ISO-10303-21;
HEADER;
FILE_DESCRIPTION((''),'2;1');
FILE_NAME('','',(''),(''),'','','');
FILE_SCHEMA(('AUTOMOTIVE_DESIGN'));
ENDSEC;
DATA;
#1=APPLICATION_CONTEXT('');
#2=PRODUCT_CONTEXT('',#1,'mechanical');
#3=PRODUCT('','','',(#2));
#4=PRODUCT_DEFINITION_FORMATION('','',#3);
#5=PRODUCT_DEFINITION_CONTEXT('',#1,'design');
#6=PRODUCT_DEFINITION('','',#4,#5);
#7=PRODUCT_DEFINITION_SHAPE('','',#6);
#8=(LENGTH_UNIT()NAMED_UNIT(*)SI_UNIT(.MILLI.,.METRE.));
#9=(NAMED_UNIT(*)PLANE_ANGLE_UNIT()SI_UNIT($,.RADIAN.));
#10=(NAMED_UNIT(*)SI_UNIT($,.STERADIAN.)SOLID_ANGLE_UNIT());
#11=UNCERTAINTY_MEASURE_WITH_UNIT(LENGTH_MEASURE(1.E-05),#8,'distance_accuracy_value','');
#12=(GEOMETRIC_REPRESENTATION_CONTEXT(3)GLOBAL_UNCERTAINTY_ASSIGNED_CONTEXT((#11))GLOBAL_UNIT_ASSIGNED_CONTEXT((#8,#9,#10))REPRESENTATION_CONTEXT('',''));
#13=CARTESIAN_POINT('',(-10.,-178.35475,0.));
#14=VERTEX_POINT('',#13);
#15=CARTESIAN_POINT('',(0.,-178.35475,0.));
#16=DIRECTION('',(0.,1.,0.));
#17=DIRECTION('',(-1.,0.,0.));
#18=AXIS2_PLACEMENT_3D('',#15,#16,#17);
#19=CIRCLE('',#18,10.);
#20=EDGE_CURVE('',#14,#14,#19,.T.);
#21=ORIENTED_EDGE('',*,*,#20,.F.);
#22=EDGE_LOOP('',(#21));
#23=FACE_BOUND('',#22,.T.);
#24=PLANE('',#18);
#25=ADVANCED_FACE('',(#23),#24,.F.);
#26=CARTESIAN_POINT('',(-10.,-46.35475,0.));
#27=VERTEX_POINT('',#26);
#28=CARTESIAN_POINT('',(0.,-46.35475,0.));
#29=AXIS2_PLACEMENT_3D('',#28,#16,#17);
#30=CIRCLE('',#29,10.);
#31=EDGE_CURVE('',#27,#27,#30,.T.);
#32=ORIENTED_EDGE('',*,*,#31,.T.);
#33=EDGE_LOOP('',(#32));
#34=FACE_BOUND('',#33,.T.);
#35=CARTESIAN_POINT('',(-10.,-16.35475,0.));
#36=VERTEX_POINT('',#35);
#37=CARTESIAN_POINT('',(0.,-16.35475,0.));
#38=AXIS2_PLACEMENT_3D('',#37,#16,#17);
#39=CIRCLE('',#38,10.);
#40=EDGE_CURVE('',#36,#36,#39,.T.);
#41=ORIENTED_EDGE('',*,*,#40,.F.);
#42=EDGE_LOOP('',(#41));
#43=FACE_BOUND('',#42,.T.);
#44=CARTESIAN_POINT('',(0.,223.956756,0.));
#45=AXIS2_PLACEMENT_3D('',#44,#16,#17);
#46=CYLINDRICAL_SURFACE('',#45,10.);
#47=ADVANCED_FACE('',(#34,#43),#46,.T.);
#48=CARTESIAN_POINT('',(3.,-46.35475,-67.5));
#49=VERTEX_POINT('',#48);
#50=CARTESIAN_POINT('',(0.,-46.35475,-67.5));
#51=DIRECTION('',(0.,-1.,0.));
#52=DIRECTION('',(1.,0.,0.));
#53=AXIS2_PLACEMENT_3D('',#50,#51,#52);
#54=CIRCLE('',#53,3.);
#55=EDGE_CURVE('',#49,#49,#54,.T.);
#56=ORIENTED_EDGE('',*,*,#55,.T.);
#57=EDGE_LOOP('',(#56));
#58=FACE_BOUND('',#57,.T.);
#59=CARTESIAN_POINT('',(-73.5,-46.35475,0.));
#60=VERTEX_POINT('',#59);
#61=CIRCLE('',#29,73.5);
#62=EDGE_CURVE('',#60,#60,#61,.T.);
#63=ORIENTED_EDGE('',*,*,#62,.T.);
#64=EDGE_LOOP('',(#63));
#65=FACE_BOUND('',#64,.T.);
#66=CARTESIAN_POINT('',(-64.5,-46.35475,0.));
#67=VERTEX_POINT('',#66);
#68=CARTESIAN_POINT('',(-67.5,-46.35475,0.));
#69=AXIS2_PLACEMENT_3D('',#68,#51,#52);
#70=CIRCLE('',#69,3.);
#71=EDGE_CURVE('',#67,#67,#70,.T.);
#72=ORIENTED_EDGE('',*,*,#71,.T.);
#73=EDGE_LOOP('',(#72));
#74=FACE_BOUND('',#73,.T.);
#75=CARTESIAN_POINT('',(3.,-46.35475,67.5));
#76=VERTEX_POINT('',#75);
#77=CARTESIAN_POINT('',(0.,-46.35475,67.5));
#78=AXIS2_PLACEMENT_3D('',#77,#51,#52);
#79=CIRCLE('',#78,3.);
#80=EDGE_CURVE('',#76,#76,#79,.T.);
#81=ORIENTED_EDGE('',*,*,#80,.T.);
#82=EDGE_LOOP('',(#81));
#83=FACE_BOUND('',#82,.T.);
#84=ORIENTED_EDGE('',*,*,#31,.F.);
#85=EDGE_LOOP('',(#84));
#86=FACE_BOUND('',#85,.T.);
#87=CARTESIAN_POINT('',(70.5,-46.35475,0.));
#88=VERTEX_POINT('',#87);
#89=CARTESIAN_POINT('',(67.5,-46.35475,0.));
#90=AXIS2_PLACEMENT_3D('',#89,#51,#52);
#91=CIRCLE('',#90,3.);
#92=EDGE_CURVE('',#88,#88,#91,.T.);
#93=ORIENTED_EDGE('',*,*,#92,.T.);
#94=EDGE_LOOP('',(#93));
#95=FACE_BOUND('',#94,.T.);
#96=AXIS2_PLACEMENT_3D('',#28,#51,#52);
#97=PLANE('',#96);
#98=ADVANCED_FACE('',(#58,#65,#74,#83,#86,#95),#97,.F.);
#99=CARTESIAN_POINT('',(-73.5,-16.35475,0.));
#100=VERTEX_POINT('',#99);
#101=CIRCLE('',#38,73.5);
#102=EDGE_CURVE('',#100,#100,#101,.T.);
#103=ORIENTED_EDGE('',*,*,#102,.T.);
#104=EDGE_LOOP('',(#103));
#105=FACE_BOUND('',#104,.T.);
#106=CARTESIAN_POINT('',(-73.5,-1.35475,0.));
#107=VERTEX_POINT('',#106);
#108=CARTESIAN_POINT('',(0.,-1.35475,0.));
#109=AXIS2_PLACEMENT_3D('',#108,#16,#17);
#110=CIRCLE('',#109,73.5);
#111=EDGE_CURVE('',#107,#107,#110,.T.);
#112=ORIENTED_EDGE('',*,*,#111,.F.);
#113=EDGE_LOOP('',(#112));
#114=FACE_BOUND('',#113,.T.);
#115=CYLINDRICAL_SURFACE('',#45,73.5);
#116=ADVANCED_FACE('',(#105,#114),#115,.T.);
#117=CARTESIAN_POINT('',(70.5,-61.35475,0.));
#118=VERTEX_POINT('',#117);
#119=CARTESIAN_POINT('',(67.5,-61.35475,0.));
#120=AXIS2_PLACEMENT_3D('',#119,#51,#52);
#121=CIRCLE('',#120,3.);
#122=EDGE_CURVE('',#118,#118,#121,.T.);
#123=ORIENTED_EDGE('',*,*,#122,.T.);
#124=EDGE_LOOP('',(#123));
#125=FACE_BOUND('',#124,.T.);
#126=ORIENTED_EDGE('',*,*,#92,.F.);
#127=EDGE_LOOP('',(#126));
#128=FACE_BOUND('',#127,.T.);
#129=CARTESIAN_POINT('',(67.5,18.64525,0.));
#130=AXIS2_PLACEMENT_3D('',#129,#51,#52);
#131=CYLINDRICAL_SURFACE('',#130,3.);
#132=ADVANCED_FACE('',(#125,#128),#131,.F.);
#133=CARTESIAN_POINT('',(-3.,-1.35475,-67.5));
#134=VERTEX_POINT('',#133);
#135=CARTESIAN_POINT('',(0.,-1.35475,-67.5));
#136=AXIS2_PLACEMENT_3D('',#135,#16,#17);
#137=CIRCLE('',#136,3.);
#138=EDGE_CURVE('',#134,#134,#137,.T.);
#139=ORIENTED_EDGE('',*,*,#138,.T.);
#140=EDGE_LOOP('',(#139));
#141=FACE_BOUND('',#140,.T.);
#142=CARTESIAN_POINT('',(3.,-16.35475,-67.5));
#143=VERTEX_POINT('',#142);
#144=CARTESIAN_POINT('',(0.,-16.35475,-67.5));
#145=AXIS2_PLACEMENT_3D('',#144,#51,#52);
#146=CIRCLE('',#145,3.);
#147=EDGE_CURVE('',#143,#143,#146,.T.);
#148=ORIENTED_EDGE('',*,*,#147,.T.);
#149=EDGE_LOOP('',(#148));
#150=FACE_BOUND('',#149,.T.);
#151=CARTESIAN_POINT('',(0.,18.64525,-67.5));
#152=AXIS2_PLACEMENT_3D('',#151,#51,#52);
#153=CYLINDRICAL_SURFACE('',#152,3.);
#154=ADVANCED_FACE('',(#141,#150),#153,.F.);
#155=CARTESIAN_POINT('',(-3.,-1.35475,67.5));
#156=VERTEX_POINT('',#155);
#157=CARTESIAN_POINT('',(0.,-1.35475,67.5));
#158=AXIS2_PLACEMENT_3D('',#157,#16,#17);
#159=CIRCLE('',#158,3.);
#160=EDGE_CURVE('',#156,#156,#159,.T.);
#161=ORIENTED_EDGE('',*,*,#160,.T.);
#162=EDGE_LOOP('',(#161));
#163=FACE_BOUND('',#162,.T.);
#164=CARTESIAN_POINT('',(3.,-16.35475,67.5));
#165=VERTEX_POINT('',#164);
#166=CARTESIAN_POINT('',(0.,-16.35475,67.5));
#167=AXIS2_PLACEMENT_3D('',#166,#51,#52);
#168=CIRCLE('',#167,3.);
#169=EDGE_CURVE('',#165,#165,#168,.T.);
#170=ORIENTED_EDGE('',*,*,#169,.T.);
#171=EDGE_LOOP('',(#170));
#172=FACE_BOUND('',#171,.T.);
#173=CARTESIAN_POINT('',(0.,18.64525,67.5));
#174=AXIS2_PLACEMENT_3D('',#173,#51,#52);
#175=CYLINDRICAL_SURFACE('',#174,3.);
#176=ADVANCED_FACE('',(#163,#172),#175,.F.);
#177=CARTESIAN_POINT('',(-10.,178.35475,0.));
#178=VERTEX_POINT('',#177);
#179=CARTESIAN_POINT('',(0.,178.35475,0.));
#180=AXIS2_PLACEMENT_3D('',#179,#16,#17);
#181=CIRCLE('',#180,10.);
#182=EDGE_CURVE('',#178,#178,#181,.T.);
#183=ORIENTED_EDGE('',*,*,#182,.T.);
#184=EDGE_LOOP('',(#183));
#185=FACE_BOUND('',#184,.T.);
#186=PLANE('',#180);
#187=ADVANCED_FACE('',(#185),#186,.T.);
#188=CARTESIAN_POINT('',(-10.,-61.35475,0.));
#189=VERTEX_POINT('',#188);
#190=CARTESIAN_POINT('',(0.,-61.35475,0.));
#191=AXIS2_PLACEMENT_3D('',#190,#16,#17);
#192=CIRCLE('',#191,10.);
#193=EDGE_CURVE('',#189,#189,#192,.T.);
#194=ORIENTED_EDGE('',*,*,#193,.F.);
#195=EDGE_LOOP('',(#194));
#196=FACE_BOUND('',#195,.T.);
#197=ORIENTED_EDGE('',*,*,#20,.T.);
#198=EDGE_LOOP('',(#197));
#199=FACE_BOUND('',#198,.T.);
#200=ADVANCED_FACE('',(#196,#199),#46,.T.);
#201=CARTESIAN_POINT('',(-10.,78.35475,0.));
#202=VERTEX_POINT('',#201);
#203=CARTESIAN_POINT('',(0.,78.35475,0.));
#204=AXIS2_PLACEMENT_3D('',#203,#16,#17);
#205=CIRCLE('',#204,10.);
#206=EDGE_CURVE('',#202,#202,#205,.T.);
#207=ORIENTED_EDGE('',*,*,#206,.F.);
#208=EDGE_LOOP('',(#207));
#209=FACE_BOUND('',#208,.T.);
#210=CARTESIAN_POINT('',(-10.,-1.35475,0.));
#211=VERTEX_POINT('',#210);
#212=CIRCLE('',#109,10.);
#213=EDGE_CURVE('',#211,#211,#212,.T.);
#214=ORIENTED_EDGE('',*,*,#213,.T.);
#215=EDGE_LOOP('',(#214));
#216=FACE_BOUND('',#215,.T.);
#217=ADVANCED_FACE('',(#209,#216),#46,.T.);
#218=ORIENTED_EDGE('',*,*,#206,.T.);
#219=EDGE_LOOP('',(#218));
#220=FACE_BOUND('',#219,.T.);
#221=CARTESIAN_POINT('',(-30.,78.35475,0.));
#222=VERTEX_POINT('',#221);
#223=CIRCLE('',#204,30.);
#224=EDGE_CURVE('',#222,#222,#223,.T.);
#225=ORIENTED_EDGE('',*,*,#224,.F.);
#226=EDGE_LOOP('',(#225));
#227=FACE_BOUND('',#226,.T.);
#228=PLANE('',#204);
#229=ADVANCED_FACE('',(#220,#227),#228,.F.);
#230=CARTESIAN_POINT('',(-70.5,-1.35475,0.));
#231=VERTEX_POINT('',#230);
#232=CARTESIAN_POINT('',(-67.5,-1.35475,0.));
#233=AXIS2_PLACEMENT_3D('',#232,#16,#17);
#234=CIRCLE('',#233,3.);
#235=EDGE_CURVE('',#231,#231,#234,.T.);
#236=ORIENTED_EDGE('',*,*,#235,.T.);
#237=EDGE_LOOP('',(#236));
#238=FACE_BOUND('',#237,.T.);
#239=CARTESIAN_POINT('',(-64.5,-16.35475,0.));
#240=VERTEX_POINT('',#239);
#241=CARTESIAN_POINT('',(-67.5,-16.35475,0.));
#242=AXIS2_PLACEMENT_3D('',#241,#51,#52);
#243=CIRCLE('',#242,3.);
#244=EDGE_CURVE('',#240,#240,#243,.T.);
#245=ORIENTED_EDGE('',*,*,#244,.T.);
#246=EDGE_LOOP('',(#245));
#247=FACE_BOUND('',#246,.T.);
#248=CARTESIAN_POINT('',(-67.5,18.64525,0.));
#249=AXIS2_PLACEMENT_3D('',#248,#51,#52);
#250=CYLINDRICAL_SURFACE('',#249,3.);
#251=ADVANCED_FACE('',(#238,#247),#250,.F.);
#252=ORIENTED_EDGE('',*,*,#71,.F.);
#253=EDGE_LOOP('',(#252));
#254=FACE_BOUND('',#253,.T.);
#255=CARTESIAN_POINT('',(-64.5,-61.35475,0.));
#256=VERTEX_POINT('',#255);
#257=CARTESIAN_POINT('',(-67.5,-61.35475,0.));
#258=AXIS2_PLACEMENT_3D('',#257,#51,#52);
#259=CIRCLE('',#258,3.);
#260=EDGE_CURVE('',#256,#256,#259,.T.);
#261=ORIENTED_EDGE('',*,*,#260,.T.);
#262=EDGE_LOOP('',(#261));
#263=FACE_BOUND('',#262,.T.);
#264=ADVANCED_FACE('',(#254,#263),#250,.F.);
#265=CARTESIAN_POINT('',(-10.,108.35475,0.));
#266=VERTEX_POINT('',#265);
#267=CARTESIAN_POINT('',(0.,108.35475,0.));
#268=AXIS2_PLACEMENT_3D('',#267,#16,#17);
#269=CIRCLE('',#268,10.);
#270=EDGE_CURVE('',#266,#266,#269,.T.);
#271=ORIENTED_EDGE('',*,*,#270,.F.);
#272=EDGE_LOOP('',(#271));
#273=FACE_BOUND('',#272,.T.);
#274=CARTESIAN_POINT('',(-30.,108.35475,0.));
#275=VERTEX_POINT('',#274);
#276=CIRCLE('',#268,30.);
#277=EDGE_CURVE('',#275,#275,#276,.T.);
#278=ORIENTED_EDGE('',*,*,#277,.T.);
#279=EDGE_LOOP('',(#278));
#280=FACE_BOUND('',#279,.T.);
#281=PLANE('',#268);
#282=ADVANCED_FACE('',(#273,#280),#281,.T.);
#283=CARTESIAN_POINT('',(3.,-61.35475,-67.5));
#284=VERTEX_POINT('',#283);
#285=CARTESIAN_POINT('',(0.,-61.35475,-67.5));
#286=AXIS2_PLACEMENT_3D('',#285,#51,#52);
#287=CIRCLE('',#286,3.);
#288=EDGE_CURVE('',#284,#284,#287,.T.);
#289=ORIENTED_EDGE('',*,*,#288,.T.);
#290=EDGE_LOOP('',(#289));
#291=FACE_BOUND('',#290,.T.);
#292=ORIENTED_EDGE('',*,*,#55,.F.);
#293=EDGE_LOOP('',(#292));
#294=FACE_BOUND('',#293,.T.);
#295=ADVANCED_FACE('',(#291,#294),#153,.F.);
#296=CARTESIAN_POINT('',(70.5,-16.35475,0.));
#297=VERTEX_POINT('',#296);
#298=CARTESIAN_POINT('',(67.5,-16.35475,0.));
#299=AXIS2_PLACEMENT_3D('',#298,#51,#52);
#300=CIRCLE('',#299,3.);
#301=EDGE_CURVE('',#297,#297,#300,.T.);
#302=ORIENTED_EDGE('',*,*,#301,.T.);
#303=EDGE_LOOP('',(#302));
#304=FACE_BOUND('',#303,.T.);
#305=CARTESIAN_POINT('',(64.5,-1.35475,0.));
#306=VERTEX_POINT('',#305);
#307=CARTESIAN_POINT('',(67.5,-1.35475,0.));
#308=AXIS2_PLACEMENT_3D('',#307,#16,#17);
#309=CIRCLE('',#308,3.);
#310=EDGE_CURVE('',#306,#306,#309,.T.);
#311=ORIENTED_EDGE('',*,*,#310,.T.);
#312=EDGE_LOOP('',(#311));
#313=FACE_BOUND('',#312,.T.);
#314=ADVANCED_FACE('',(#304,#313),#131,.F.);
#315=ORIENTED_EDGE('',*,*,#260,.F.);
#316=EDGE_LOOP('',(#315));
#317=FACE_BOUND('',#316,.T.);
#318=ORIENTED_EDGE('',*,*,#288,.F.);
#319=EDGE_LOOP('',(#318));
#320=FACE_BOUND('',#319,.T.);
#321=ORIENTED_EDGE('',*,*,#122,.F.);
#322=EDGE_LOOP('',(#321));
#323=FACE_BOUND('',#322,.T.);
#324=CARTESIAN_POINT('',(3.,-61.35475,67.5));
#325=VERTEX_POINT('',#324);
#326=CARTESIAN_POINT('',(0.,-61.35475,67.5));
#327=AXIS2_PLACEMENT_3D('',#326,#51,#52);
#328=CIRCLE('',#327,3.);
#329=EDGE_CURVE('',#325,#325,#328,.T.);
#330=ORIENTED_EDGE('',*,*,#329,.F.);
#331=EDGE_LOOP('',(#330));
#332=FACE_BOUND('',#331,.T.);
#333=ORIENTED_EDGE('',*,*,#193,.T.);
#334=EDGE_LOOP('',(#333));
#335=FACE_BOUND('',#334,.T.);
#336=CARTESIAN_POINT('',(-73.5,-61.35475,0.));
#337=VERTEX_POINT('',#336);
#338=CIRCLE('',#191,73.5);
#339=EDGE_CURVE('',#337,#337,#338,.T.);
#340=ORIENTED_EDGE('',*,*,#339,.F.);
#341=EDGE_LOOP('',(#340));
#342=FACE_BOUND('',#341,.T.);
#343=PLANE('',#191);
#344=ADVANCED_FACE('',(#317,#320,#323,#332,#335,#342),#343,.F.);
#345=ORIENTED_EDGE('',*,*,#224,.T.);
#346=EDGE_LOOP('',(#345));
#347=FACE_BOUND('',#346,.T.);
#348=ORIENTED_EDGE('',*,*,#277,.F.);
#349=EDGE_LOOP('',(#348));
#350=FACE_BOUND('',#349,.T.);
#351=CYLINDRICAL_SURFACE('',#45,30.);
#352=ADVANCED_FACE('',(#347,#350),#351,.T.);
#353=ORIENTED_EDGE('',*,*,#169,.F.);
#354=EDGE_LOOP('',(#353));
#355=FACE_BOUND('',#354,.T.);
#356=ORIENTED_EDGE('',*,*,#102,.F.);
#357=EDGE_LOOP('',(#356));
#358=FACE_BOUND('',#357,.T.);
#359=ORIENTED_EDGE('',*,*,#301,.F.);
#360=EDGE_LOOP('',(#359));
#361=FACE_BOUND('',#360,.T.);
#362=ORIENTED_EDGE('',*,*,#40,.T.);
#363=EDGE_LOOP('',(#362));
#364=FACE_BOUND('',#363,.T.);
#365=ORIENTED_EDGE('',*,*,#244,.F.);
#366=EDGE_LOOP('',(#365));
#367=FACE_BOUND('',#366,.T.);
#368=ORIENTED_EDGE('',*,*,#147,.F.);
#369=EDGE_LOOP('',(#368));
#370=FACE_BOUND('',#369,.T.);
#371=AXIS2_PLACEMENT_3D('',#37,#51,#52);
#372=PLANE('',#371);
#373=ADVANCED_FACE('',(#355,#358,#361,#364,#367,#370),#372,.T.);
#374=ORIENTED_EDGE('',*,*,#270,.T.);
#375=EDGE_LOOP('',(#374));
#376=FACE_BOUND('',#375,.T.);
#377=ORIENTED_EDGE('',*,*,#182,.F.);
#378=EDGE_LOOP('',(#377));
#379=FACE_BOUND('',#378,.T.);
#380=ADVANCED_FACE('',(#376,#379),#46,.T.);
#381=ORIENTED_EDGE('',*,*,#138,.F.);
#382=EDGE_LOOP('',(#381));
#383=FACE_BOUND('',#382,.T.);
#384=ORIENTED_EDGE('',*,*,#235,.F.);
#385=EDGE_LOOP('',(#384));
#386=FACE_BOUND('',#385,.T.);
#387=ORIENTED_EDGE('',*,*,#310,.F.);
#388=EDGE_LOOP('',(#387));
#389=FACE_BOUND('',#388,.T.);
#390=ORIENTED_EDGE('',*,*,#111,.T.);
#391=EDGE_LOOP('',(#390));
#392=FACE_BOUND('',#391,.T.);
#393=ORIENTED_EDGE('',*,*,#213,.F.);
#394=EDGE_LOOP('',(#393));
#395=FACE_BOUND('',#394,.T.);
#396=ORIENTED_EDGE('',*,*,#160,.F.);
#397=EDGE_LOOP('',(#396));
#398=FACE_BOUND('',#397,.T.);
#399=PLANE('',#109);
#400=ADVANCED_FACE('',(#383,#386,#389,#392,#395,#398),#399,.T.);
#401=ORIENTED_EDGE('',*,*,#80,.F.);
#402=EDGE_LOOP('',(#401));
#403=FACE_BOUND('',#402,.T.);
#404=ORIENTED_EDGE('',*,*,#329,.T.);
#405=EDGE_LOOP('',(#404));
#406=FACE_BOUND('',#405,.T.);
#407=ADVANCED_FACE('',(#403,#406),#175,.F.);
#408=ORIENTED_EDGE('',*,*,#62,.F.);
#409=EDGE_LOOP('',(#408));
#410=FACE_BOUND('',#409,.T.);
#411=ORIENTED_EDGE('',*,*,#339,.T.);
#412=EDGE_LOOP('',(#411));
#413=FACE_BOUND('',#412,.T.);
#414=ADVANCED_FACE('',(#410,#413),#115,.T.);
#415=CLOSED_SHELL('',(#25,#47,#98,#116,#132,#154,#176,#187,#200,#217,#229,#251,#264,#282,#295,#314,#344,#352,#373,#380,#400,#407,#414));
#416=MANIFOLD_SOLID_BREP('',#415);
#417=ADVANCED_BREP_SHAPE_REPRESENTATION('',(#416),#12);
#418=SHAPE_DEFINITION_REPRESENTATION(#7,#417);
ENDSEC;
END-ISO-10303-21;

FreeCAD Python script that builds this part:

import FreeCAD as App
import Part
import Sketcher
from FreeCAD import Vector
Q = App.Units.Quantity


def add_polygon(sketch, points):
    """Adds a closed chain of lines whose ends are joined by coincident constraints."""
    first, n = sketch.GeometryCount, len(points)
    for a, b in zip(points, points[1:] + points[:1]):
        sketch.addGeometry(Part.LineSegment(App.Vector(*a, 0), App.Vector(*b, 0)), False)
    for i in range(n):
        sketch.addConstraint(Sketcher.Constraint("Coincident", first + i, 2, first + (i + 1) % n, 1))

doc = App.newDocument("Part")
params = doc.addObject("Spreadsheet::Sheet", "Params")
for row, (alias, value) in enumerate([
    ("sketch1_width", "10 mm"),
    ("sketch1_width2", "20 mm"),
    ("sketch1_height", "117 mm"),
    ("sketch1_height2", "15 mm"),
    ("sketch1_height3", "30 mm"),
    ("revolution_angle", "360 deg"),
    ("sketch2_diameter", "6 mm"),
    ("pocket1_length", "80 mm"),
], start=1):
    params.set(f"A{row}", alias)
    params.set(f"B{row}", "=" + value)
    params.setAlias(f"B{row}", alias)

body = doc.addObject("PartDesign::Body", "Body")

# Sketch on XY plane
sketch1 = doc.addObject("Sketcher::SketchObject", "Sketch")
body.addObject(sketch1)
sketch1.AttachmentSupport = (doc.XY_Plane, [""])
sketch1.MapMode = "FlatFace"
add_polygon(sketch1, [(0, -178), (10, -178), (10, -61), (74, -61), (74, -46), (10, -46), (10, -16), (74, -16), (74, -1), (10, -1), (10, 78), (30, 78), (30, 108), (10, 108), (10, 178), (0, 178)])  # lines 0-15
sketch1.addConstraint(Sketcher.Constraint("Horizontal", 0))
sketch1.addConstraint(Sketcher.Constraint("Vertical", 1))
sketch1.addConstraint(Sketcher.Constraint("Horizontal", 2))
sketch1.addConstraint(Sketcher.Constraint("Vertical", 3))
sketch1.addConstraint(Sketcher.Constraint("Horizontal", 4))
sketch1.addConstraint(Sketcher.Constraint("Vertical", 5))
sketch1.addConstraint(Sketcher.Constraint("Horizontal", 6))
sketch1.addConstraint(Sketcher.Constraint("Vertical", 7))
sketch1.addConstraint(Sketcher.Constraint("Horizontal", 8))
sketch1.addConstraint(Sketcher.Constraint("Vertical", 9))
sketch1.addConstraint(Sketcher.Constraint("Horizontal", 10))
sketch1.addConstraint(Sketcher.Constraint("Vertical", 11))
sketch1.addConstraint(Sketcher.Constraint("Horizontal", 12))
sketch1.addConstraint(Sketcher.Constraint("Vertical", 13))
sketch1.addConstraint(Sketcher.Constraint("Horizontal", 14))
sketch1.addConstraint(Sketcher.Constraint("Vertical", 15))
sketch1.addConstraint(Sketcher.Constraint("Symmetric", 14, 2, 15, 2, -1, 1))
sketch1.addConstraint(Sketcher.Constraint("Vertical", 1, 2, 4, 2))
sketch1.addConstraint(Sketcher.Constraint("Vertical", 3, 2, 6, 2))
sketch1.addConstraint(Sketcher.Constraint("Vertical", 5, 2, 8, 2))
sketch1.addConstraint(Sketcher.Constraint("Vertical", 9, 2, 12, 2))
sketch1.addConstraint(Sketcher.Constraint("Equal", 3, 7))
sketch1.addConstraint(Sketcher.Constraint("Equal", 5, 11))
sketch1.addConstraint(Sketcher.Constraint("DistanceX", 0, 1, 0, 2, Q("10 mm")))
sketch1.addConstraint(Sketcher.Constraint("DistanceX", 10, 1, 10, 2, Q("20 mm")))
sketch1.addConstraint(Sketcher.Constraint("DistanceY", 1, 1, 1, 2, Q("117 mm")))
sketch1.addConstraint(Sketcher.Constraint("DistanceY", 3, 1, 3, 2, Q("15 mm")))
sketch1.addConstraint(Sketcher.Constraint("DistanceY", 5, 1, 5, 2, Q("30 mm")))
sketch1.addConstraint(Sketcher.Constraint("DistanceY", 13, 1, 13, 2, Q("70 mm")))
sketch1.addConstraint(Sketcher.Constraint("DistanceX", 2, 1, 2, 2, Q("63.5 mm")))
sketch1.addConstraint(Sketcher.Constraint("DistanceY", 9, 1, 9, 2, Q("79.7095 mm")))
sketch1.setExpression("Constraints[39]", "Params.sketch1_width")
sketch1.setExpression("Constraints[40]", "Params.sketch1_width2")
sketch1.setExpression("Constraints[41]", "Params.sketch1_height")
sketch1.setExpression("Constraints[42]", "Params.sketch1_height2")
sketch1.setExpression("Constraints[43]", "Params.sketch1_height3")
revolution = doc.addObject("PartDesign::Revolution", "Revolution")
body.addObject(revolution)
revolution.Profile = sketch1
revolution.ReferenceAxis = (sketch1, ["V_Axis"])
revolution.setExpression("Angle", "Params.revolution_angle")

# Sketch on XZ plane
sketch2 = doc.addObject("Sketcher::SketchObject", "Sketch001")
body.addObject(sketch2)
sketch2.AttachmentSupport = (doc.XZ_Plane, [""])
sketch2.MapMode = "FlatFace"
sketch2.AttachmentOffset = App.Placement(Vector(0, 0, 61.35475), App.Rotation())
sketch2.addGeometry(Part.Circle(Vector(67.5, 0, 0), Vector(0, 0, 1), 3), False)
sketch2.addGeometry(Part.Circle(Vector(-67.5, 0, 0), Vector(0, 0, 1), 3), False)
sketch2.addGeometry(Part.Circle(Vector(0, 67.5, 0), Vector(0, 0, 1), 3), False)
sketch2.addGeometry(Part.Circle(Vector(0, -67.5, 0), Vector(0, 0, 1), 3), False)
sketch2.addConstraint(Sketcher.Constraint("Equal", 0, 1))
sketch2.addConstraint(Sketcher.Constraint("Equal", 1, 2))
sketch2.addConstraint(Sketcher.Constraint("Equal", 2, 3))
sketch2.addConstraint(Sketcher.Constraint("Symmetric", 0, 3, 1, 3, -1, 1))
sketch2.addConstraint(Sketcher.Constraint("Symmetric", 2, 3, 3, 3, -1, 1))
sketch2.addConstraint(Sketcher.Constraint("PointOnObject", 0, 3, -1))
sketch2.addConstraint(Sketcher.Constraint("PointOnObject", 2, 3, -2))
sketch2.addConstraint(Sketcher.Constraint("Diameter", 0, Q("6 mm")))
sketch2.addConstraint(Sketcher.Constraint("DistanceX", 1, 3, 0, 3, Q("135 mm")))
sketch2.addConstraint(Sketcher.Constraint("DistanceY", 3, 3, 2, 3, Q("135 mm")))
sketch2.setExpression("Constraints[7]", "Params.sketch2_diameter")
pocket1 = doc.addObject("PartDesign::Pocket", "Pocket")
body.addObject(pocket1)
pocket1.Profile = sketch2
pocket1.setExpression("Length", "Params.pocket1_length")

doc.recompute()
